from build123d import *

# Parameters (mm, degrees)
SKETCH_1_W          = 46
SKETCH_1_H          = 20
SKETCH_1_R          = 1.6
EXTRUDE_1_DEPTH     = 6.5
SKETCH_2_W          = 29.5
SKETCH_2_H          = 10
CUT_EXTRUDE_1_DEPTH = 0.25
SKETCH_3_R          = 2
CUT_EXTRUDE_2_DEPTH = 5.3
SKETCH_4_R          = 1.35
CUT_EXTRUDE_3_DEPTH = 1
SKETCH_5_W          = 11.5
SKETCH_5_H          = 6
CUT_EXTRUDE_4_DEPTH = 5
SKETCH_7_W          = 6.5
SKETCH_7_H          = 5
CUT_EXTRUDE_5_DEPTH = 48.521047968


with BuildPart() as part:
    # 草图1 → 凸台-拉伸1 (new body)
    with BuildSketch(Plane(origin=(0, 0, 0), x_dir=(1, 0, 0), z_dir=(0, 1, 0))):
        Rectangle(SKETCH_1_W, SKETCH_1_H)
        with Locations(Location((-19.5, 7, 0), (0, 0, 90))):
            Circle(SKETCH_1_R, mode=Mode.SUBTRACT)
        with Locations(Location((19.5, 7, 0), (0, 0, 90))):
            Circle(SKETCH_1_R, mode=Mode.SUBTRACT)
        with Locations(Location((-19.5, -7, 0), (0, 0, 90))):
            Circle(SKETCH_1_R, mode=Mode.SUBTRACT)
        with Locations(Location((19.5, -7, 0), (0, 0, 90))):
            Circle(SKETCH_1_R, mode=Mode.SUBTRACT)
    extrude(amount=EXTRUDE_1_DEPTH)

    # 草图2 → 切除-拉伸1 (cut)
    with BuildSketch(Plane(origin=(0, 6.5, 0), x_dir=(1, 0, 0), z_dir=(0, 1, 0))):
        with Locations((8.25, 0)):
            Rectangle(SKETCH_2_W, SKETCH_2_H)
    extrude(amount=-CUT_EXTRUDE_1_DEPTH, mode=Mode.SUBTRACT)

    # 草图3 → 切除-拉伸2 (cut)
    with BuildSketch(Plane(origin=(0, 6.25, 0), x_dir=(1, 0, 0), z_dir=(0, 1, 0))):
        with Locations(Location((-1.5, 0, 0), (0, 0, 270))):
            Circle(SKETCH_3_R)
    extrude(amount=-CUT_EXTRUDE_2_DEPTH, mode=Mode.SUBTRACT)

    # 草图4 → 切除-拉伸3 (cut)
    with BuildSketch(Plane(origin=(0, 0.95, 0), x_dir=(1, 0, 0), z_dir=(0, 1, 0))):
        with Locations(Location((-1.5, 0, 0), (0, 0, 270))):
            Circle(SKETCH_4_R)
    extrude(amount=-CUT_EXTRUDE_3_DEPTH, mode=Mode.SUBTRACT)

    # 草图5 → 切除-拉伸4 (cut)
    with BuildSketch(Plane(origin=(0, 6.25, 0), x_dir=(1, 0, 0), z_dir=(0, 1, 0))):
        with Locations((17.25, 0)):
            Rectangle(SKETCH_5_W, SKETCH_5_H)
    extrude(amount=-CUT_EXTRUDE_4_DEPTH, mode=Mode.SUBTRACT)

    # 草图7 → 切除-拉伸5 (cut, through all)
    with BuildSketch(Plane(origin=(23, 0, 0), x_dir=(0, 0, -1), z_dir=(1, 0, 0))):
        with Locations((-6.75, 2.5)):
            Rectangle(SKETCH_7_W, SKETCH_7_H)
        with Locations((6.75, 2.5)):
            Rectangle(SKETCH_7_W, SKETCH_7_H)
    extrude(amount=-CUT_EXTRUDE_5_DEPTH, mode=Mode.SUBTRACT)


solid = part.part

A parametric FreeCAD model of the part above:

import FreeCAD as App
import Part
import Sketcher

doc = App.newDocument("Part")
body = doc.addObject("PartDesign::Body", "Body")

sketch1 = doc.addObject("Sketcher::SketchObject", "Sketch")
body.addObject(sketch1)
sketch1.AttachmentSupport = (doc.XZ_Plane, [""])
sketch1.MapMode = "FlatFace"
sketch1.addGeometry(Part.LineSegment(App.Vector(-23, -10, 0), App.Vector(-23, 10, 0)), False)
sketch1.addGeometry(Part.LineSegment(App.Vector(-23, 10, 0), App.Vector(23, 10, 0)), False)
sketch1.addGeometry(Part.LineSegment(App.Vector(23, 10, 0), App.Vector(23, -10, 0)), False)
sketch1.addGeometry(Part.LineSegment(App.Vector(23, -10, 0), App.Vector(-23, -10, 0)), False)
sketch1.addGeometry(Part.Circle(App.Vector(-19.5, 7, 0), App.Vector(0, 0, 1), 1.6), False)
sketch1.addGeometry(Part.Circle(App.Vector(19.5, 7, 0), App.Vector(0, 0, 1), 1.6), False)
sketch1.addGeometry(Part.Circle(App.Vector(-19.5, -7, 0), App.Vector(0, 0, 1), 1.6), False)
sketch1.addGeometry(Part.Circle(App.Vector(19.5, -7, 0), App.Vector(0, 0, 1), 1.6), False)
sketch1.addConstraint(Sketcher.Constraint("Coincident", 0, 2, 1, 1))
sketch1.addConstraint(Sketcher.Constraint("Coincident", 1, 2, 2, 1))
sketch1.addConstraint(Sketcher.Constraint("Coincident", 2, 2, 3, 1))
sketch1.addConstraint(Sketcher.Constraint("Coincident", 3, 2, 0, 1))
sketch1.addConstraint(Sketcher.Constraint("Vertical", 0))
sketch1.addConstraint(Sketcher.Constraint("Horizontal", 1))
sketch1.addConstraint(Sketcher.Constraint("Vertical", 2))
sketch1.addConstraint(Sketcher.Constraint("Horizontal", 3))
sketch1.addConstraint(Sketcher.Constraint("Equal", 4, 5))
sketch1.addConstraint(Sketcher.Constraint("Equal", 5, 6))
sketch1.addConstraint(Sketcher.Constraint("Equal", 6, 7))
sketch1.addConstraint(Sketcher.Constraint("Symmetric", 5, 3, 6, 3, -1, 1))
sketch1.addConstraint(Sketcher.Constraint("Symmetric", 4, 3, 7, 3, -1, 1))
sketch1.addConstraint(Sketcher.Constraint("Symmetric", 0, 2, 2, 2, -1, 1))
sketch1.addConstraint(Sketcher.Constraint("Symmetric", 4, 3, 5, 3, -2))
sketch1.addConstraint(Sketcher.Constraint("Diameter", 4, 3.2))
sketch1.addConstraint(Sketcher.Constraint("DistanceX", 1, 1, 1, 2, 46.0))
sketch1.addConstraint(Sketcher.Constraint("DistanceY", 0, 1, 0, 2, 20.0))
sketch1.addConstraint(Sketcher.Constraint("DistanceY", -1, 1, 4, 3, 7.0))
sketch1.addConstraint(Sketcher.Constraint("DistanceX", 4, 3, 5, 3, 39.0))
pad1 = doc.addObject("PartDesign::Pad", "Pad")
body.addObject(pad1)
pad1.Profile = sketch1
pad1.Length = 6.5
pad1.Reversed = True

sketch2 = doc.addObject("Sketcher::SketchObject", "Sketch001")
body.addObject(sketch2)
sketch2.AttachmentSupport = (doc.XZ_Plane, [""])
sketch2.MapMode = "FlatFace"
sketch2.AttachmentOffset = App.Placement(App.Vector(0, 0, -6.5), App.Rotation())
sketch2.addGeometry(Part.LineSegment(App.Vector(-6, -5, 0), App.Vector(-6, 5, 0)), False)
sketch2.addGeometry(Part.LineSegment(App.Vector(-6, 5, 0), App.Vector(23, 5, 0)), False)
sketch2.addGeometry(Part.LineSegment(App.Vector(23, 5, 0), App.Vector(23, -5, 0)), False)
sketch2.addGeometry(Part.LineSegment(App.Vector(23, -5, 0), App.Vector(-6, -5, 0)), False)
sketch2.addConstraint(Sketcher.Constraint("Coincident", 0, 2, 1, 1))
sketch2.addConstraint(Sketcher.Constraint("Coincident", 1, 2, 2, 1))
sketch2.addConstraint(Sketcher.Constraint("Coincident", 2, 2, 3, 1))
sketch2.addConstraint(Sketcher.Constraint("Coincident", 3, 2, 0, 1))
sketch2.addConstraint(Sketcher.Constraint("Vertical", 0))
sketch2.addConstraint(Sketcher.Constraint("Horizontal", 1))
sketch2.addConstraint(Sketcher.Constraint("Vertical", 2))
sketch2.addConstraint(Sketcher.Constraint("Horizontal", 3))
sketch2.addConstraint(Sketcher.Constraint("DistanceY", 0, 1, 0, 2, 10.0))
sketch2.addConstraint(Sketcher.Constraint("DistanceX", 1, 1, 1, 2, 29.5))
sketch2.addConstraint(Sketcher.Constraint("DistanceY", -1, 1, 0, 2, 5.0))
sketch2.addConstraint(Sketcher.Constraint("DistanceX", -1, 1, 1, 2, 23.0))
pocket1 = doc.addObject("PartDesign::Pocket", "Pocket")
body.addObject(pocket1)
pocket1.Profile = sketch2
pocket1.Length = 0.25
pocket1.Reversed = True

sketch3 = doc.addObject("Sketcher::SketchObject", "Sketch002")
body.addObject(sketch3)
sketch3.AttachmentSupport = (doc.XZ_Plane, [""])
sketch3.MapMode = "FlatFace"
sketch3.AttachmentOffset = App.Placement(App.Vector(0, 0, -6.25), App.Rotation())
sketch3.addGeometry(Part.Circle(App.Vector(-1.5, 0, 0), App.Vector(0, 0, 1), 2), False)
sketch3.addConstraint(Sketcher.Constraint("PointOnObject", 0, 3, -1))
sketch3.addConstraint(Sketcher.Constraint("Diameter", 0, 4.0))
sketch3.addConstraint(Sketcher.Constraint("DistanceX", 0, 3, -1, 1, 1.5))
pocket2 = doc.addObject("PartDesign::Pocket", "Pocket001")
body.addObject(pocket2)
pocket2.Profile = sketch3
pocket2.Length = 5.3
pocket2.Reversed = True

sketch4 = doc.addObject("Sketcher::SketchObject", "Sketch003")
body.addObject(sketch4)
sketch4.AttachmentSupport = (doc.XZ_Plane, [""])
sketch4.MapMode = "FlatFace"
sketch4.AttachmentOffset = App.Placement(App.Vector(0, 0, -0.95), App.Rotation())
sketch4.addGeometry(Part.Circle(App.Vector(-1.5, 0, 0), App.Vector(0, 0, 1), 1.4), False)
sketch4.addConstraint(Sketcher.Constraint("PointOnObject", 0, 3, -1))
sketch4.addConstraint(Sketcher.Constraint("Diameter", 0, 2.7))
sketch4.addConstraint(Sketcher.Constraint("DistanceX", 0, 3, -1, 1, 1.5))
pocket3 = doc.addObject("PartDesign::Pocket", "Pocket002")
body.addObject(pocket3)
pocket3.Profile = sketch4
pocket3.Length = 1
pocket3.Reversed = True

sketch5 = doc.addObject("Sketcher::SketchObject", "Sketch004")
body.addObject(sketch5)
sketch5.AttachmentSupport = (doc.XZ_Plane, [""])
sketch5.MapMode = "FlatFace"
sketch5.AttachmentOffset = App.Placement(App.Vector(0, 0, -6.25), App.Rotation())
sketch5.addGeometry(Part.LineSegment(App.Vector(12, -3, 0), App.Vector(12, 3, 0)), False)
sketch5.addGeometry(Part.LineSegment(App.Vector(12, 3, 0), App.Vector(23, 3, 0)), False)
sketch5.addGeometry(Part.LineSegment(App.Vector(23, 3, 0), App.Vector(23, -3, 0)), False)
sketch5.addGeometry(Part.LineSegment(App.Vector(23, -3, 0), App.Vector(12, -3, 0)), False)
sketch5.addConstraint(Sketcher.Constraint("Coincident", 0, 2, 1, 1))
sketch5.addConstraint(Sketcher.Constraint("Coincident", 1, 2, 2, 1))
sketch5.addConstraint(Sketcher.Constraint("Coincident", 2, 2, 3, 1))
sketch5.addConstraint(Sketcher.Constraint("Coincident", 3, 2, 0, 1))
sketch5.addConstraint(Sketcher.Constraint("Vertical", 0))
sketch5.addConstraint(Sketcher.Constraint("Horizontal", 1))
sketch5.addConstraint(Sketcher.Constraint("Vertical", 2))
sketch5.addConstraint(Sketcher.Constraint("Horizontal", 3))
sketch5.addConstraint(Sketcher.Constraint("DistanceY", 0, 1, 0, 2, 6.0))
sketch5.addConstraint(Sketcher.Constraint("DistanceX", 1, 1, 1, 2, 11.5))
sketch5.addConstraint(Sketcher.Constraint("DistanceY", -1, 1, 0, 2, 3.0))
sketch5.addConstraint(Sketcher.Constraint("DistanceX", -1, 1, 1, 2, 23.0))
pocket4 = doc.addObject("PartDesign::Pocket", "Pocket003")
body.addObject(pocket4)
pocket4.Profile = sketch5
pocket4.Length = 5
pocket4.Reversed = True

sketch6 = doc.addObject("Sketcher::SketchObject", "Sketch005")
body.addObject(sketch6)
sketch6.AttachmentSupport = (doc.YZ_Plane, [""])
sketch6.MapMode = "FlatFace"
sketch6.AttachmentOffset = App.Placement(App.Vector(0, 0, 23), App.Rotation())
sketch6.addGeometry(Part.LineSegment(App.Vector(5, 10, 0), App.Vector(0, 10, 0)), False)
sketch6.addGeometry(Part.LineSegment(App.Vector(0, 10, 0), App.Vector(0, 4, 0)), False)
sketch6.addGeometry(Part.LineSegment(App.Vector(0, 4, 0), App.Vector(5, 4, 0)), False)
sketch6.addGeometry(Part.LineSegment(App.Vector(5, 4, 0), App.Vector(5, 10, 0)), False)
sketch6.addGeometry(Part.LineSegment(App.Vector(5, -4, 0), App.Vector(0, -4, 0)), False)
sketch6.addGeometry(Part.LineSegment(App.Vector(0, -4, 0), App.Vector(0, -10, 0)), False)
sketch6.addGeometry(Part.LineSegment(App.Vector(0, -10, 0), App.Vector(5, -10, 0)), False)
sketch6.addGeometry(Part.LineSegment(App.Vector(5, -10, 0), App.Vector(5, -4, 0)), False)
sketch6.addConstraint(Sketcher.Constraint("Coincident", 0, 2, 1, 1))
sketch6.addConstraint(Sketcher.Constraint("Coincident", 1, 2, 2, 1))
sketch6.addConstraint(Sketcher.Constraint("Coincident", 2, 2, 3, 1))
sketch6.addConstraint(Sketcher.Constraint("Coincident", 3, 2, 0, 1))
sketch6.addConstraint(Sketcher.Constraint("Coincident", 4, 2, 5, 1))
sketch6.addConstraint(Sketcher.Constraint("Coincident", 5, 2, 6, 1))
sketch6.addConstraint(Sketcher.Constraint("Coincident", 6, 2, 7, 1))
sketch6.addConstraint(Sketcher.Constraint("Coincident", 7, 2, 4, 1))
sketch6.addConstraint(Sketcher.Constraint("Horizontal", 0))
sketch6.addConstraint(Sketcher.Constraint("Vertical", 1))
sketch6.addConstraint(Sketcher.Constraint("Horizontal", 2))
sketch6.addConstraint(Sketcher.Constraint("Vertical", 3))
sketch6.addConstraint(Sketcher.Constraint("Horizontal", 4))
sketch6.addConstraint(Sketcher.Constraint("Vertical", 5))
sketch6.addConstraint(Sketcher.Constraint("Horizontal", 6))
sketch6.addConstraint(Sketcher.Constraint("Vertical", 7))
sketch6.addConstraint(Sketcher.Constraint("Symmetric", 1, 2, 4, 2, -1, 1))
sketch6.addConstraint(Sketcher.Constraint("Symmetric", 0, 2, 5, 2, -1))
sketch6.addConstraint(Sketcher.Constraint("Vertical", 3, 2, 6, 2))
sketch6.addConstraint(Sketcher.Constraint("DistanceX", 0, 2, 0, 1, 5.0))
sketch6.addConstraint(Sketcher.Constraint("DistanceY", 1, 2, 1, 1, 6.5))
sketch6.addConstraint(Sketcher.Constraint("DistanceY", -1, 1, 0, 2, 10.0))
pocket5 = doc.addObject("PartDesign::Pocket", "Pocket004")
body.addObject(pocket5)
pocket5.Profile = sketch6
pocket5.Type = "ThroughAll"

doc.recompute()
